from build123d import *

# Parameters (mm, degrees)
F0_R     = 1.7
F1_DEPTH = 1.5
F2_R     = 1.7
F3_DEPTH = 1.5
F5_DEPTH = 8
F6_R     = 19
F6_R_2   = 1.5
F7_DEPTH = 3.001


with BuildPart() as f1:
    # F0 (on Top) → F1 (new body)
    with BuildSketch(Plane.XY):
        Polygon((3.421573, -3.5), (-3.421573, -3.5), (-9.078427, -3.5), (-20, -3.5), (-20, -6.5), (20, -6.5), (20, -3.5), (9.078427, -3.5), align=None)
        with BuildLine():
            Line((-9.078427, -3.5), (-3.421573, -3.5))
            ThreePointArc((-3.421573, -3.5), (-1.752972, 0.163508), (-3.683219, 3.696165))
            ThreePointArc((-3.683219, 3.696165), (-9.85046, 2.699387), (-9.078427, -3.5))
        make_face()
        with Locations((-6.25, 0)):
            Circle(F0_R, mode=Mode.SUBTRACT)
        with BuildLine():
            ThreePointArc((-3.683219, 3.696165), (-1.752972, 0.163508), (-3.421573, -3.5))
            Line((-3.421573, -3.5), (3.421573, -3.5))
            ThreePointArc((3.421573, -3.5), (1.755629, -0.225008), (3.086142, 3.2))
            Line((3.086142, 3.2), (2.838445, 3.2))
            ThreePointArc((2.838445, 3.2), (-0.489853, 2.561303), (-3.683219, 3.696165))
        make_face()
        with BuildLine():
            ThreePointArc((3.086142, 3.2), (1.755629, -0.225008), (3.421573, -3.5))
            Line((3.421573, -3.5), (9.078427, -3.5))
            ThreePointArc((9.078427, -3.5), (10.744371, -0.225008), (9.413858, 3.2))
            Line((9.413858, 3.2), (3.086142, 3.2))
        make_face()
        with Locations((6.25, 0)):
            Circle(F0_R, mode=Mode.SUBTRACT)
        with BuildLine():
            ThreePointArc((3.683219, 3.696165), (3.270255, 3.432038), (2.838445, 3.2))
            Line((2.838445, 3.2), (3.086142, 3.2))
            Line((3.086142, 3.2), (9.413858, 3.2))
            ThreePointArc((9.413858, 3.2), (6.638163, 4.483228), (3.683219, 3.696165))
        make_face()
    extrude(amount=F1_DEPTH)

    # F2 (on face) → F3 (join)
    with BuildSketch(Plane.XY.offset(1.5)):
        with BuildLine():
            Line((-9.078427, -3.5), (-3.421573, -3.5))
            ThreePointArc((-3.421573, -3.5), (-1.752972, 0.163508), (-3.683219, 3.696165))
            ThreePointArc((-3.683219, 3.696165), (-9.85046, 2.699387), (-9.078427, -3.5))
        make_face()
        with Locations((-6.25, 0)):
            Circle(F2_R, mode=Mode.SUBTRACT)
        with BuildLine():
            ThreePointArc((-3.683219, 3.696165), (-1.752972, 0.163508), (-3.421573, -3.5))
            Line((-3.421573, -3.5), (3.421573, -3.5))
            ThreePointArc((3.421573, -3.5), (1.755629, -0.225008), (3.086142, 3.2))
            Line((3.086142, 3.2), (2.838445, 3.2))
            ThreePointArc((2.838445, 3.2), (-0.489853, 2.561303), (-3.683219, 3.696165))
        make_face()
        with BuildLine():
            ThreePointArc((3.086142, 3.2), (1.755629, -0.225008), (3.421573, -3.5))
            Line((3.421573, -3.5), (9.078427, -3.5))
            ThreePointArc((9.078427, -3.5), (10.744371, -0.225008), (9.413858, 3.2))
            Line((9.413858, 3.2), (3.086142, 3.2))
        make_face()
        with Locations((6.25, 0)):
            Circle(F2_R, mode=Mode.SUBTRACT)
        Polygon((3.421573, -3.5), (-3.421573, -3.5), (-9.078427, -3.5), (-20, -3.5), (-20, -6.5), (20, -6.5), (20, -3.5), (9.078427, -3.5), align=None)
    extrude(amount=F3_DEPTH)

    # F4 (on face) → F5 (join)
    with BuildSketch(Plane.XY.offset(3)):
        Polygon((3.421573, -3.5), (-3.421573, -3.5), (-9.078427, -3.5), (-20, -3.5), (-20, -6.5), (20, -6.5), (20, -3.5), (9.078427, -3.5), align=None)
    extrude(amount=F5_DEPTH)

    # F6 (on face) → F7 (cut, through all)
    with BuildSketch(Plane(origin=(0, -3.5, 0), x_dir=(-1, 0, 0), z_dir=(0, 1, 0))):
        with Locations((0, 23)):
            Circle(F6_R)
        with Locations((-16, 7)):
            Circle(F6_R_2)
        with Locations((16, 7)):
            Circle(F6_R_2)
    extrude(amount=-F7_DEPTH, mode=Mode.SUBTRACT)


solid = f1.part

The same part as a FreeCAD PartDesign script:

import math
import FreeCAD as App
import Part
import Sketcher
from FreeCAD import Vector
Q = App.Units.Quantity


def add_polygon(sketch, points):
    """Adds a closed chain of lines whose ends are joined by coincident constraints."""
    first, n = sketch.GeometryCount, len(points)
    for a, b in zip(points, points[1:] + points[:1]):
        sketch.addGeometry(Part.LineSegment(App.Vector(*a, 0), App.Vector(*b, 0)), False)
    for i in range(n):
        sketch.addConstraint(Sketcher.Constraint("Coincident", first + i, 2, first + (i + 1) % n, 1))

doc = App.newDocument("Part")
params = doc.addObject("Spreadsheet::Sheet", "Params")
for row, (alias, value) in enumerate([
    ("sketch1_diameter", "3.4 mm"),
    ("sketch1_radius", "4.5 mm"),
    ("sketch1_width", "40 mm"),
    ("sketch1_height", "3 mm"),
    ("pad1_length", "1.5 mm"),
    ("sketch2_diameter", "3.4 mm"),
    ("sketch2_radius", "4.5 mm"),
    ("sketch2_width", "40 mm"),
    ("sketch2_height", "3 mm"),
    ("pad2_length", "1.5 mm"),
    ("sketch3_width", "40 mm"),
    ("sketch3_height", "3 mm"),
    ("pad3_length", "8 mm"),
    ("sketch4_diameter", "38 mm"),
    ("sketch4_diameter2", "3 mm"),
], start=1):
    params.set(f"A{row}", alias)
    params.set(f"B{row}", "=" + value)
    params.setAlias(f"B{row}", alias)

body = doc.addObject("PartDesign::Body", "Body")

# Sketch on XY plane
sketch1 = body.newObject("Sketcher::SketchObject", "Sketch")
sketch1.AttachmentSupport = (doc.getObject("XY_Plane"), [""])
sketch1.MapMode = "FlatFace"
sketch1.addGeometry([
    Part.LineSegment(Vector(-20, -3.5, 0), Vector(-20, -6.5, 0)),  # 0
    Part.LineSegment(Vector(-20, -6.5, 0), Vector(20, -6.5, 0)),  # 1
    Part.LineSegment(Vector(20, -6.5, 0), Vector(20, -3.5, 0)),  # 2
    Part.LineSegment(Vector(20, -3.5, 0), Vector(9.1, -3.5, 0)),  # 3
    Part.ArcOfCircle(Part.Circle(Vector(6.3, 0, 0), Vector(0, 0, 1), 4.5), math.radians(-51), math.radians(45)),  # 4
    Part.ArcOfCircle(Part.Circle(Vector(6.2, 0, 0), Vector(0, 0, 1), 4.5), math.radians(45), math.radians(125)),  # 5
    Part.ArcOfCircle(Part.Circle(Vector(0, 9, 0), Vector(0, 0, 1), 6.5), math.radians(-63.92), math.radians(-55.22)),  # 6
    Part.ArcOfCircle(Part.Circle(Vector(0, 9, 0), Vector(0, 0, 1), 6.5), math.radians(-125), math.radians(-64)),  # 7
    Part.ArcOfCircle(Part.Circle(Vector(-6.3, 0, 0), Vector(0, 0, 1), 4.5), math.radians(55), math.radians(231)),  # 8
    Part.LineSegment(Vector(-9.1, -3.5, 0), Vector(-20, -3.5, 0)),  # 9
    Part.Circle(Vector(-6.2, 0, 0), Vector(0, 0, 1), 1.7),  # 10
    Part.Circle(Vector(6.2, 0, 0), Vector(0, 0, 1), 1.7),  # 11
], False)
sketch1.addConstraint([
    Sketcher.Constraint("Coincident", 0, 2, 1, 1),
    Sketcher.Constraint("Coincident", 1, 2, 2, 1),
    Sketcher.Constraint("Coincident", 2, 2, 3, 1),
    Sketcher.Constraint("Coincident", 3, 2, 4, 1),
    Sketcher.Constraint("Tangent", 4, 2, 5, 1),
    Sketcher.Constraint("Tangent", 5, 2, 6, 2),
    Sketcher.Constraint("Tangent", 6, 1, 7, 2),
    Sketcher.Constraint("Tangent", 7, 1, 8, 1),
    Sketcher.Constraint("Coincident", 8, 2, 9, 1),
    Sketcher.Constraint("Coincident", 9, 2, 0, 1),
    Sketcher.Constraint("Vertical", 0),
    Sketcher.Constraint("Horizontal", 1),
    Sketcher.Constraint("Vertical", 2),
    Sketcher.Constraint("Horizontal", 3),
    Sketcher.Constraint("Horizontal", 9),
    Sketcher.Constraint("Coincident", 10, 3, 8, 3),
    Sketcher.Constraint("Coincident", 11, 3, 4, 3),
    Sketcher.Constraint("Equal", 4, 5),
    Sketcher.Constraint("Equal", 5, 8),
    Sketcher.Constraint("Equal", 10, 11),
    Sketcher.Constraint("Symmetric", 4, 3, 8, 3, -1, 1),
    Sketcher.Constraint("Symmetric", 5, 2, 7, 1, -2),
    Sketcher.Constraint("Symmetric", 2, 2, 9, 2, -2),
    Sketcher.Constraint("Horizontal", 4, 2, 6, 1),
    Sketcher.Constraint("Diameter", 10, Q("3.4 mm")),
    Sketcher.Constraint("Radius", 4, Q("4.5 mm")),
    Sketcher.Constraint("DistanceX", 1, 1, 1, 2, Q("40 mm")),
    Sketcher.Constraint("DistanceY", 0, 2, 0, 1, Q("3 mm")),
    Sketcher.Constraint("DistanceY", 0, 2, -1, 1, Q("6.5 mm")),
    Sketcher.Constraint("DistanceY", -1, 1, 4, 2, Q("3.2 mm")),
    Sketcher.Constraint("Radius", 7, Q("6.457301 mm")),
    Sketcher.Constraint("DistanceX", 8, 3, 5, 3, Q("12.5 mm")),
])
sketch1.setExpression("Constraints[24]", "Params.sketch1_diameter")
sketch1.setExpression("Constraints[25]", "Params.sketch1_radius")
sketch1.setExpression("Constraints[26]", "Params.sketch1_width")
sketch1.setExpression("Constraints[27]", "Params.sketch1_height")
pad1 = body.newObject("PartDesign::Pad", "Pad")
pad1.Profile = sketch1
pad1.setExpression("Length", "Params.pad1_length")

# Sketch on XY plane
sketch2 = body.newObject("Sketcher::SketchObject", "Sketch001")
sketch2.AttachmentSupport = (doc.getObject("XY_Plane"), [""])
sketch2.MapMode = "FlatFace"
sketch2.AttachmentOffset = App.Placement(Vector(0, 0, 1.5), App.Rotation())
sketch2.addGeometry([
    Part.ArcOfCircle(Part.Circle(Vector(-6.3, 0, 0), Vector(0, 0, 1), 4.5), math.radians(55), math.radians(231)),  # 0
    Part.LineSegment(Vector(-9.1, -3.5, 0), Vector(-20, -3.5, 0)),  # 1
    Part.LineSegment(Vector(-20, -3.5, 0), Vector(-20, -6.5, 0)),  # 2
    Part.LineSegment(Vector(-20, -6.5, 0), Vector(20, -6.5, 0)),  # 3
    Part.LineSegment(Vector(20, -6.5, 0), Vector(20, -3.5, 0)),  # 4
    Part.LineSegment(Vector(20, -3.5, 0), Vector(9.1, -3.5, 0)),  # 5
    Part.ArcOfCircle(Part.Circle(Vector(6.3, 0, 0), Vector(0, 0, 1), 4.5), math.radians(-51), math.radians(45)),  # 6
    Part.LineSegment(Vector(9.4, 3.2, 0), Vector(2.8, 3.2, 0)),  # 7
    Part.ArcOfCircle(Part.Circle(Vector(0, 9, 0), Vector(0, 0, 1), 6.5), math.radians(-125), math.radians(-64)),  # 8
    Part.Circle(Vector(-6.2, 0, 0), Vector(0, 0, 1), 1.7),  # 9
    Part.Circle(Vector(6.2, 0, 0), Vector(0, 0, 1), 1.7),  # 10
], False)
sketch2.addConstraint([
    Sketcher.Constraint("Coincident", 0, 2, 1, 1),
    Sketcher.Constraint("Coincident", 1, 2, 2, 1),
    Sketcher.Constraint("Coincident", 2, 2, 3, 1),
    Sketcher.Constraint("Coincident", 3, 2, 4, 1),
    Sketcher.Constraint("Coincident", 4, 2, 5, 1),
    Sketcher.Constraint("Coincident", 5, 2, 6, 1),
    Sketcher.Constraint("Coincident", 6, 2, 7, 1),
    Sketcher.Constraint("Coincident", 7, 2, 8, 2),
    Sketcher.Constraint("Tangent", 8, 1, 0, 1),
    Sketcher.Constraint("Horizontal", 1),
    Sketcher.Constraint("Vertical", 2),
    Sketcher.Constraint("Horizontal", 3),
    Sketcher.Constraint("Vertical", 4),
    Sketcher.Constraint("Horizontal", 5),
    Sketcher.Constraint("Horizontal", 7),
    Sketcher.Constraint("Coincident", 9, 3, 0, 3),
    Sketcher.Constraint("Coincident", 10, 3, 6, 3),
    Sketcher.Constraint("Equal", 0, 6),
    Sketcher.Constraint("Equal", 9, 10),
    Sketcher.Constraint("Symmetric", 0, 3, 6, 3, -1, 1),
    Sketcher.Constraint("Symmetric", 1, 2, 4, 2, -2),
    Sketcher.Constraint("PointOnObject", 0, 3, -1),
    Sketcher.Constraint("PointOnObject", 8, 3, -2),
    Sketcher.Constraint("Diameter", 9, Q("3.4 mm")),
    Sketcher.Constraint("Radius", 0, Q("4.5 mm")),
    Sketcher.Constraint("DistanceX", 3, 1, 3, 2, Q("40 mm")),
    Sketcher.Constraint("DistanceY", 2, 2, 2, 1, Q("3 mm")),
    Sketcher.Constraint("DistanceY", 0, 2, -1, 1, Q("3.5 mm")),
    Sketcher.Constraint("DistanceY", -1, 1, 6, 2, Q("3.2 mm")),
    Sketcher.Constraint("Radius", 8, Q("6.457301 mm")),
    Sketcher.Constraint("DistanceX", 0, 3, 6, 3, Q("12.5 mm")),
])
sketch2.setExpression("Constraints[23]", "Params.sketch2_diameter")
sketch2.setExpression("Constraints[24]", "Params.sketch2_radius")
sketch2.setExpression("Constraints[25]", "Params.sketch2_width")
sketch2.setExpression("Constraints[26]", "Params.sketch2_height")
pad2 = body.newObject("PartDesign::Pad", "Pad001")
pad2.Profile = sketch2
pad2.setExpression("Length", "Params.pad2_length")

# Sketch on XY plane
sketch3 = body.newObject("Sketcher::SketchObject", "Sketch002")
sketch3.AttachmentSupport = (doc.getObject("XY_Plane"), [""])
sketch3.MapMode = "FlatFace"
sketch3.AttachmentOffset = App.Placement(Vector(0, 0, 3), App.Rotation())
add_polygon(sketch3, [(-20, -3.5), (-20, -6.5), (20, -6.5), (20, -3.5)])  # lines 0-3
sketch3.addConstraint([
    Sketcher.Constraint("Vertical", 0),
    Sketcher.Constraint("Horizontal", 1),
    Sketcher.Constraint("Vertical", 2),
    Sketcher.Constraint("Horizontal", 3),
    Sketcher.Constraint("DistanceX", 1, 1, 1, 2, Q("40 mm")),
    Sketcher.Constraint("DistanceY", 0, 2, 0, 1, Q("3 mm")),
    Sketcher.Constraint("DistanceX", 0, 2, -1, 1, Q("20 mm")),
    Sketcher.Constraint("DistanceY", 0, 2, -1, 1, Q("6.5 mm")),
])
sketch3.setExpression("Constraints[8]", "Params.sketch3_width")
sketch3.setExpression("Constraints[9]", "Params.sketch3_height")
pad3 = body.newObject("PartDesign::Pad", "Pad002")
pad3.Profile = sketch3
pad3.setExpression("Length", "Params.pad3_length")

# Sketch on XZ plane
sketch4 = body.newObject("Sketcher::SketchObject", "Sketch003")
sketch4.AttachmentSupport = (doc.getObject("XZ_Plane"), [""])
sketch4.MapMode = "FlatFace"
sketch4.AttachmentOffset = App.Placement(Vector(0, 0, 3.5), App.Rotation())
sketch4.addGeometry([
    Part.Circle(Vector(0, 23, 0), Vector(0, 0, 1), 19),
    Part.Circle(Vector(16, 7, 0), Vector(0, 0, 1), 1.5),
    Part.Circle(Vector(-16, 7, 0), Vector(0, 0, 1), 1.5),
], False)
sketch4.addConstraint([
    Sketcher.Constraint("Equal", 1, 2),
    Sketcher.Constraint("Symmetric", 1, 3, 2, 3, -2),
    Sketcher.Constraint("PointOnObject", 0, 3, -2),
    Sketcher.Constraint("Diameter", 0, Q("38 mm")),
    Sketcher.Constraint("Diameter", 1, Q("3 mm")),
    Sketcher.Constraint("DistanceY", -1, 1, 0, 3, Q("23 mm")),
    Sketcher.Constraint("DistanceX", -1, 1, 1, 3, Q("16 mm")),
    Sketcher.Constraint("DistanceY", -1, 1, 1, 3, Q("7 mm")),
])
sketch4.setExpression("Constraints[3]", "Params.sketch4_diameter")
sketch4.setExpression("Constraints[4]", "Params.sketch4_diameter2")
pocket1 = body.newObject("PartDesign::Pocket", "Pocket")
pocket1.Profile = sketch4
pocket1.Type = "ThroughAll"
pocket1.Reversed = True

doc.recompute()
